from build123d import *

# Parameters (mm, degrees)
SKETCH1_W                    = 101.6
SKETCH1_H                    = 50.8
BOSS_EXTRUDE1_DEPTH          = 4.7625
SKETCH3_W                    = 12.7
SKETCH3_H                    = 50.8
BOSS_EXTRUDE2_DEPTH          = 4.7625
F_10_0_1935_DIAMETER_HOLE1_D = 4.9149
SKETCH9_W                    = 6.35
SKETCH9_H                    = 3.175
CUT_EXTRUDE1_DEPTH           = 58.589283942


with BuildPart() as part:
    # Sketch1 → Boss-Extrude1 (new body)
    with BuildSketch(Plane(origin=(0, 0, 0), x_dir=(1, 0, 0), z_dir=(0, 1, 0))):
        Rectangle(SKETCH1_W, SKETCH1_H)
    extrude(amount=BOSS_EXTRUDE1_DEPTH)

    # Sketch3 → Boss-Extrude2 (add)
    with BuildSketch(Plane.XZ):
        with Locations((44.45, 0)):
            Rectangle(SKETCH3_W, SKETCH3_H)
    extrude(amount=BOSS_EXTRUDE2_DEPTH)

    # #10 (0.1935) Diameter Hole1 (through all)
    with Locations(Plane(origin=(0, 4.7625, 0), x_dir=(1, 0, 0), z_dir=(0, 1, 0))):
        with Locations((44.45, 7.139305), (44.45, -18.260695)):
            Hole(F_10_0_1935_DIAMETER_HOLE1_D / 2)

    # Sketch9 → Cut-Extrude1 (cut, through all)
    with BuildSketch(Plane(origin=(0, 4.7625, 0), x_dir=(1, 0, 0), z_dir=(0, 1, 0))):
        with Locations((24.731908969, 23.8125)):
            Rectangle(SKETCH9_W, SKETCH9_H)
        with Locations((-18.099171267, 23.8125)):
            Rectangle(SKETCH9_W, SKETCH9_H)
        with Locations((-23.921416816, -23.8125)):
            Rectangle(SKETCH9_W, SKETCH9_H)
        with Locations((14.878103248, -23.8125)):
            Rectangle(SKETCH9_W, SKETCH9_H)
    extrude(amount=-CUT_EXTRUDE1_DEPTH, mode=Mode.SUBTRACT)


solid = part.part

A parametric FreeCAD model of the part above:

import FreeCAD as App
import Part
import Sketcher

V = App.Vector
Q = App.Units.Quantity


def add_polygon(sketch, points):
    """Adds a closed chain of lines whose ends are joined by coincident constraints."""
    first, n = sketch.GeometryCount, len(points)
    for a, b in zip(points, points[1:] + points[:1]):
        sketch.addGeometry(Part.LineSegment(App.Vector(*a, 0), App.Vector(*b, 0)), False)
    for i in range(n):
        sketch.addConstraint(Sketcher.Constraint("Coincident", first + i, 2, first + (i + 1) % n, 1))

doc = App.newDocument("Part")
body = doc.addObject("PartDesign::Body", "Body")

# Sketch on XZ plane
sketch1 = body.newObject("Sketcher::SketchObject", "Sketch")
sketch1.AttachmentSupport = (doc.getObject("XZ_Plane"), [""])
sketch1.MapMode = "FlatFace"
add_polygon(sketch1, [(-50.8, -25.4), (-50.8, 25.4), (50.8, 25.4), (50.8, -25.4)])  # lines 0-3
sketch1.addConstraint([
    Sketcher.Constraint("Vertical", 0),
    Sketcher.Constraint("Horizontal", 1),
    Sketcher.Constraint("Vertical", 2),
    Sketcher.Constraint("Horizontal", 3),
    Sketcher.Constraint("Symmetric", 0, 2, 2, 2, -1, 1),
    Sketcher.Constraint("DistanceX", 1, 1, 1, 2, Q("4 in")),
    Sketcher.Constraint("DistanceY", 0, 1, 0, 2, Q("2 in")),
])
pad1 = body.newObject("PartDesign::Pad", "Pad")
pad1.Profile = sketch1
pad1.Length = Q("0.1875 in")
pad1.Reversed = True

# Sketch on XZ plane
sketch2 = body.newObject("Sketcher::SketchObject", "Sketch001")
sketch2.AttachmentSupport = (doc.getObject("XZ_Plane"), [""])
sketch2.MapMode = "FlatFace"
add_polygon(sketch2, [(38.1, 25.4), (38.1, -25.4), (50.8, -25.4), (50.8, 25.4)])  # lines 0-3
sketch2.addConstraint([
    Sketcher.Constraint("Vertical", 0),
    Sketcher.Constraint("Horizontal", 1),
    Sketcher.Constraint("Vertical", 2),
    Sketcher.Constraint("Horizontal", 3),
    Sketcher.Constraint("DistanceY", 0, 2, 0, 1, Q("2 in")),
    Sketcher.Constraint("DistanceX", 1, 1, 1, 2, Q("0.5 in")),
    Sketcher.Constraint("DistanceY", 0, 2, -1, 1, Q("1 in")),
    Sketcher.Constraint("DistanceX", -1, 1, 1, 2, Q("2 in")),
])
pad2 = body.newObject("PartDesign::Pad", "Pad001")
pad2.Profile = sketch2
pad2.Length = Q("0.1875 in")

# Sketch on XZ plane
sketch3 = body.newObject("Sketcher::SketchObject", "Sketch002")
sketch3.AttachmentSupport = (doc.getObject("XZ_Plane"), [""])
sketch3.MapMode = "FlatFace"
sketch3.AttachmentOffset = App.Placement(V(0, 0, -0.1875 * 25.4), App.Rotation())
sketch3.addGeometry([
    Part.Circle(V(44.45, -7.139305, 0), V(0, 0, 1), 2.45745),
    Part.Circle(V(44.45, 18.260695, 0), V(0, 0, 1), 2.45745),
], False)
sketch3.addConstraint([
    Sketcher.Constraint("Equal", 0, 1),
    Sketcher.Constraint("Vertical", 0, 3, 1, 3),
    Sketcher.Constraint("DistanceY", 0, 3, 1, 3, Q("1 in")),
    Sketcher.Constraint("Diameter", 0, Q("0.1935 in")),
    Sketcher.Constraint("DistanceX", -1, 1, 0, 3, Q("1.75 in")),
    Sketcher.Constraint("DistanceY", 0, 3, -1, 1, Q("7.139305 mm")),
])
doc.recompute()
hole = body.newObject("PartDesign::Hole", "Hole")
hole.Profile = sketch3
hole.ThreadType = "None"
hole.Diameter = Q("0.1935 in")
hole.DepthType = "ThroughAll"
hole.Reversed = True

# Sketch on XZ plane
sketch4 = body.newObject("Sketcher::SketchObject", "Sketch003")
sketch4.AttachmentSupport = (doc.getObject("XZ_Plane"), [""])
sketch4.MapMode = "FlatFace"
sketch4.AttachmentOffset = App.Placement(V(0, 0, -0.1875 * 25.4), App.Rotation())
add_polygon(sketch4, [(21.556909, -25.4), (21.556909, -22.225), (27.906909, -22.225), (27.906909, -25.4)])  # lines 0-3
add_polygon(sketch4, [(-21.274171, -25.4), (-21.274171, -22.225), (-14.924171, -22.225), (-14.924171, -25.4)])  # lines 4-7
add_polygon(sketch4, [(-27.096417, 22.225), (-27.096417, 25.4), (-20.746417, 25.4), (-20.746417, 22.225)])  # lines 8-11
add_polygon(sketch4, [(11.703103, 22.225), (11.703103, 25.4), (18.053103, 25.4), (18.053103, 22.225)])  # lines 12-15
sketch4.addConstraint([
    Sketcher.Constraint("Vertical", 0),
    Sketcher.Constraint("Horizontal", 1),
    Sketcher.Constraint("Vertical", 2),
    Sketcher.Constraint("Horizontal", 3),
    Sketcher.Constraint("Vertical", 4),
    Sketcher.Constraint("Horizontal", 5),
    Sketcher.Constraint("Vertical", 6),
    Sketcher.Constraint("Horizontal", 7),
    Sketcher.Constraint("Vertical", 8),
    Sketcher.Constraint("Horizontal", 9),
    Sketcher.Constraint("Vertical", 10),
    Sketcher.Constraint("Horizontal", 11),
    Sketcher.Constraint("Vertical", 12),
    Sketcher.Constraint("Horizontal", 13),
    Sketcher.Constraint("Vertical", 14),
    Sketcher.Constraint("Horizontal", 15),
    Sketcher.Constraint("Horizontal", 1, 2, 4, 2),
    Sketcher.Constraint("Horizontal", 3, 2, 6, 2),
    Sketcher.Constraint("Horizontal", 9, 2, 12, 2),
    Sketcher.Constraint("Horizontal", 11, 2, 14, 2),
    Sketcher.Constraint("Equal", 3, 5),
    Sketcher.Constraint("Equal", 7, 9),
    Sketcher.Constraint("Equal", 11, 13),
    Sketcher.Constraint("Equal", 6, 8),
    Sketcher.Constraint("DistanceY", 2, 2, -1, 1, Q("1 in")),
    Sketcher.Constraint("DistanceY", -1, 1, 8, 2, Q("1 in")),
    Sketcher.Constraint("DistanceX", 1, 1, 1, 2, Q("0.25 in")),
    Sketcher.Constraint("DistanceY", 0, 1, 0, 2, Q("0.125 in")),
    Sketcher.Constraint("DistanceX", -1, 1, 0, 2, Q("21.556909 mm")),
    Sketcher.Constraint("DistanceX", 4, 2, -1, 1, Q("21.274171 mm")),
    Sketcher.Constraint("DistanceX", 9, 2, 12, 2, Q("32.44952 mm")),
    Sketcher.Constraint("DistanceX", 8, 2, -1, 1, Q("27.096417 mm")),
])
pocket1 = body.newObject("PartDesign::Pocket", "Pocket")
pocket1.Profile = sketch4
pocket1.Type = "ThroughAll"
pocket1.Reversed = True

doc.recompute()
